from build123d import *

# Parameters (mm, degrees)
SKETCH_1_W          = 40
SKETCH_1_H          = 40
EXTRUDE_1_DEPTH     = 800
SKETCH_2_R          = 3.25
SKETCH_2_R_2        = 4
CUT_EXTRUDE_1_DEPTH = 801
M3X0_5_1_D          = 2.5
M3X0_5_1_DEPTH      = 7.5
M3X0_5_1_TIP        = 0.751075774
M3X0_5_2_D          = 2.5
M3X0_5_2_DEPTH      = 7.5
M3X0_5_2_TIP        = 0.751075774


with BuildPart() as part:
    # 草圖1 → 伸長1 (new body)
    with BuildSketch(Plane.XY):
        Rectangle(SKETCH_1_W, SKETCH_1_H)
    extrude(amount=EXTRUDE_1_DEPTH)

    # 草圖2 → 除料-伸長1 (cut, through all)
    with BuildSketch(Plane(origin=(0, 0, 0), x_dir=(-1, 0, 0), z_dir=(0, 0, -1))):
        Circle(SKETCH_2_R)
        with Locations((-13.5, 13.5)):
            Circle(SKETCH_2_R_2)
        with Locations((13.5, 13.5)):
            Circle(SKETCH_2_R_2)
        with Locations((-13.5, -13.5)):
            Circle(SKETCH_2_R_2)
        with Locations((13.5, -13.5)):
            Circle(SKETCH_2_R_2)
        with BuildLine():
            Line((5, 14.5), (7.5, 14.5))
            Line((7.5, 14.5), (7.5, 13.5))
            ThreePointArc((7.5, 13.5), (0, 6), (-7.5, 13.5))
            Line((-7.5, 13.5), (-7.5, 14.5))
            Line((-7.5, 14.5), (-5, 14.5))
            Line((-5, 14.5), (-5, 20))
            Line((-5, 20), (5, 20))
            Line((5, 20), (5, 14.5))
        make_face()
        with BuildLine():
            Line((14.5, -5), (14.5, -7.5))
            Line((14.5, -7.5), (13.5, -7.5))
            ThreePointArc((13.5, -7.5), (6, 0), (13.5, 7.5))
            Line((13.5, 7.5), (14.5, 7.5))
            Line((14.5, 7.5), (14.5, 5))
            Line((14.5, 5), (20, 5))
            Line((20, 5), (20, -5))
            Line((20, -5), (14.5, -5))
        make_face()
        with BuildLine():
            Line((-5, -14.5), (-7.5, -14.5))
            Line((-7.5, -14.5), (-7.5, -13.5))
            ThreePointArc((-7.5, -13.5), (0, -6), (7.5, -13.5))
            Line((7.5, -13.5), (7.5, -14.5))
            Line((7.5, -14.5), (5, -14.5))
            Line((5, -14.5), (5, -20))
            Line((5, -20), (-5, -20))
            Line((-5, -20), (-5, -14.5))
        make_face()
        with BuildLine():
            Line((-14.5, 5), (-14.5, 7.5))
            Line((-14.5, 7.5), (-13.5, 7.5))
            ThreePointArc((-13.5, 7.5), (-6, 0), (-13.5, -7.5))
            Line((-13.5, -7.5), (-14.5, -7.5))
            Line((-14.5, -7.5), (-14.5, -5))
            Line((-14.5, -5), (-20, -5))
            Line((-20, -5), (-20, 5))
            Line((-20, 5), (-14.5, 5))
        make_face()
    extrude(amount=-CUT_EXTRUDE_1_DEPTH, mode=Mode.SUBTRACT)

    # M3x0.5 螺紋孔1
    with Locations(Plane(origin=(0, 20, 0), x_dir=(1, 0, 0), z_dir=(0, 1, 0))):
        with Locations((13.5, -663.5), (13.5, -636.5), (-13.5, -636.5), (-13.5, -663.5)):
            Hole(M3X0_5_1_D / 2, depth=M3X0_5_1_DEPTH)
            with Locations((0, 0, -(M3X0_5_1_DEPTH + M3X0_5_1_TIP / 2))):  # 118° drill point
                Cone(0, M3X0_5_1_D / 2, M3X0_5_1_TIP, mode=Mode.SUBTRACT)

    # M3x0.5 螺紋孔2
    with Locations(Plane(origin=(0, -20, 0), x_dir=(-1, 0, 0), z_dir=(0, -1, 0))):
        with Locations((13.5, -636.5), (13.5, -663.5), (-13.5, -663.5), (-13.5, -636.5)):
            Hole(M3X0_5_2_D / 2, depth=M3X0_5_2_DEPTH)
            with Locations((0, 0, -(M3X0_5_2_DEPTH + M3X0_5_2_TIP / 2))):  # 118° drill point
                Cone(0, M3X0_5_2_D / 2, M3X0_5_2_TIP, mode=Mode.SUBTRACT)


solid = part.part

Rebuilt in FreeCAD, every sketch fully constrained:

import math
import FreeCAD as App
import Part
import Sketcher

V = App.Vector
Q = App.Units.Quantity


def add_polygon(sketch, points):
    """Adds a closed chain of lines whose ends are joined by coincident constraints."""
    first, n = sketch.GeometryCount, len(points)
    for a, b in zip(points, points[1:] + points[:1]):
        sketch.addGeometry(Part.LineSegment(App.Vector(*a, 0), App.Vector(*b, 0)), False)
    for i in range(n):
        sketch.addConstraint(Sketcher.Constraint("Coincident", first + i, 2, first + (i + 1) % n, 1))

doc = App.newDocument("Part")
body = doc.addObject("PartDesign::Body", "Body")

sketch1 = doc.addObject("Sketcher::SketchObject", "Sketch")
body.addObject(sketch1)
sketch1.AttachmentSupport = (doc.XY_Plane, [""])
sketch1.MapMode = "FlatFace"
add_polygon(sketch1, [(-20, 20), (-20, -20), (20, -20), (20, 20)])
sketch1.addConstraint(Sketcher.Constraint("Vertical", 0))
sketch1.addConstraint(Sketcher.Constraint("Horizontal", 1))
sketch1.addConstraint(Sketcher.Constraint("Vertical", 2))
sketch1.addConstraint(Sketcher.Constraint("Horizontal", 3))
sketch1.addConstraint(Sketcher.Constraint("Symmetric", 0, 2, 2, 2, -1, 1))
sketch1.addConstraint(Sketcher.Constraint("Equal", 3, 0))
sketch1.addConstraint(Sketcher.Constraint("DistanceX", 1, 1, 1, 2, Q("40 mm")))
pad1 = doc.addObject("PartDesign::Pad", "Pad")
body.addObject(pad1)
pad1.Profile = sketch1
pad1.Length = 800

sketch2 = doc.addObject("Sketcher::SketchObject", "Sketch001")
body.addObject(sketch2)
sketch2.AttachmentSupport = (doc.XY_Plane, [""])
sketch2.MapMode = "FlatFace"
sketch2.addGeometry(Part.Circle(V(0, 0, 0), V(0, 0, 1), 3.2), False)
sketch2.addGeometry(Part.Circle(V(13.5, 13.5, 0), V(0, 0, 1), 4), False)
sketch2.addGeometry(Part.Circle(V(-13.5, 13.5, 0), V(0, 0, 1), 4), False)
sketch2.addGeometry(Part.Circle(V(13.5, -13.5, 0), V(0, 0, 1), 4), False)
sketch2.addGeometry(Part.Circle(V(-13.5, -13.5, 0), V(0, 0, 1), 4), False)
sketch2.addGeometry(Part.LineSegment(V(-7.5, 14.5, 0), V(-5, 14.5, 0)), False)
sketch2.addGeometry(Part.LineSegment(V(-5, 14.5, 0), V(-5, 20, 0)), False)
sketch2.addGeometry(Part.LineSegment(V(-5, 20, 0), V(5, 20, 0)), False)
sketch2.addGeometry(Part.LineSegment(V(5, 20, 0), V(5, 14.5, 0)), False)
sketch2.addGeometry(Part.LineSegment(V(5, 14.5, 0), V(7.5, 14.5, 0)), False)
sketch2.addGeometry(Part.LineSegment(V(7.5, 14.5, 0), V(7.5, 13.5, 0)), False)
sketch2.addGeometry(Part.ArcOfCircle(Part.Circle(V(0, 13.5, 0), V(0, 0, 1), 7.5), math.radians(180), math.radians(360)), False)
sketch2.addGeometry(Part.LineSegment(V(-7.5, 13.5, 0), V(-7.5, 14.5, 0)), False)
sketch2.addGeometry(Part.LineSegment(V(-14.5, -7.5, 0), V(-14.5, -5, 0)), False)
sketch2.addGeometry(Part.LineSegment(V(-14.5, -5, 0), V(-20, -5, 0)), False)
sketch2.addGeometry(Part.LineSegment(V(-20, -5, 0), V(-20, 5, 0)), False)
sketch2.addGeometry(Part.LineSegment(V(-20, 5, 0), V(-14.5, 5, 0)), False)
sketch2.addGeometry(Part.LineSegment(V(-14.5, 5, 0), V(-14.5, 7.5, 0)), False)
sketch2.addGeometry(Part.LineSegment(V(-14.5, 7.5, 0), V(-13.5, 7.5, 0)), False)
sketch2.addGeometry(Part.ArcOfCircle(Part.Circle(V(-13.5, 0, 0), V(0, 0, 1), 7.5), math.radians(-90), math.radians(90)), False)
sketch2.addGeometry(Part.LineSegment(V(-13.5, -7.5, 0), V(-14.5, -7.5, 0)), False)
sketch2.addGeometry(Part.LineSegment(V(7.5, -14.5, 0), V(5, -14.5, 0)), False)
sketch2.addGeometry(Part.LineSegment(V(5, -14.5, 0), V(5, -20, 0)), False)
sketch2.addGeometry(Part.LineSegment(V(5, -20, 0), V(-5, -20, 0)), False)
sketch2.addGeometry(Part.LineSegment(V(-5, -20, 0), V(-5, -14.5, 0)), False)
sketch2.addGeometry(Part.LineSegment(V(-5, -14.5, 0), V(-7.5, -14.5, 0)), False)
sketch2.addGeometry(Part.LineSegment(V(-7.5, -14.5, 0), V(-7.5, -13.5, 0)), False)
sketch2.addGeometry(Part.ArcOfCircle(Part.Circle(V(0, -13.5, 0), V(0, 0, 1), 7.5), math.radians(0), math.radians(180)), False)
sketch2.addGeometry(Part.LineSegment(V(7.5, -13.5, 0), V(7.5, -14.5, 0)), False)
sketch2.addGeometry(Part.LineSegment(V(14.5, 7.5, 0), V(14.5, 5, 0)), False)
sketch2.addGeometry(Part.LineSegment(V(14.5, 5, 0), V(20, 5, 0)), False)
sketch2.addGeometry(Part.LineSegment(V(20, 5, 0), V(20, -5, 0)), False)
sketch2.addGeometry(Part.LineSegment(V(20, -5, 0), V(14.5, -5, 0)), False)
sketch2.addGeometry(Part.LineSegment(V(14.5, -5, 0), V(14.5, -7.5, 0)), False)
sketch2.addGeometry(Part.LineSegment(V(14.5, -7.5, 0), V(13.5, -7.5, 0)), False)
sketch2.addGeometry(Part.ArcOfCircle(Part.Circle(V(13.5, 0, 0), V(0, 0, 1), 7.5), math.radians(90), math.radians(270)), False)
sketch2.addGeometry(Part.LineSegment(V(13.5, 7.5, 0), V(14.5, 7.5, 0)), False)
sketch2.addConstraint(Sketcher.Constraint("Coincident", 5, 2, 6, 1))
sketch2.addConstraint(Sketcher.Constraint("Coincident", 6, 2, 7, 1))
sketch2.addConstraint(Sketcher.Constraint("Coincident", 7, 2, 8, 1))
sketch2.addConstraint(Sketcher.Constraint("Coincident", 8, 2, 9, 1))
sketch2.addConstraint(Sketcher.Constraint("Coincident", 9, 2, 10, 1))
sketch2.addConstraint(Sketcher.Constraint("Tangent", 10, 2, 11, 2))
sketch2.addConstraint(Sketcher.Constraint("Tangent", 11, 1, 12, 1))
sketch2.addConstraint(Sketcher.Constraint("Coincident", 12, 2, 5, 1))
sketch2.addConstraint(Sketcher.Constraint("Coincident", 13, 2, 14, 1))
sketch2.addConstraint(Sketcher.Constraint("Coincident", 14, 2, 15, 1))
sketch2.addConstraint(Sketcher.Constraint("Coincident", 15, 2, 16, 1))
sketch2.addConstraint(Sketcher.Constraint("Coincident", 16, 2, 17, 1))
sketch2.addConstraint(Sketcher.Constraint("Coincident", 17, 2, 18, 1))
sketch2.addConstraint(Sketcher.Constraint("Tangent", 18, 2, 19, 2))
sketch2.addConstraint(Sketcher.Constraint("Tangent", 19, 1, 20, 1))
sketch2.addConstraint(Sketcher.Constraint("Coincident", 20, 2, 13, 1))
sketch2.addConstraint(Sketcher.Constraint("Coincident", 21, 2, 22, 1))
sketch2.addConstraint(Sketcher.Constraint("Coincident", 22, 2, 23, 1))
sketch2.addConstraint(Sketcher.Constraint("Coincident", 23, 2, 24, 1))
sketch2.addConstraint(Sketcher.Constraint("Coincident", 24, 2, 25, 1))
sketch2.addConstraint(Sketcher.Constraint("Coincident", 25, 2, 26, 1))
sketch2.addConstraint(Sketcher.Constraint("Tangent", 26, 2, 27, 2))
sketch2.addConstraint(Sketcher.Constraint("Tangent", 27, 1, 28, 1))
sketch2.addConstraint(Sketcher.Constraint("Coincident", 28, 2, 21, 1))
sketch2.addConstraint(Sketcher.Constraint("Coincident", 29, 2, 30, 1))
sketch2.addConstraint(Sketcher.Constraint("Coincident", 30, 2, 31, 1))
sketch2.addConstraint(Sketcher.Constraint("Coincident", 31, 2, 32, 1))
sketch2.addConstraint(Sketcher.Constraint("Coincident", 32, 2, 33, 1))
sketch2.addConstraint(Sketcher.Constraint("Coincident", 33, 2, 34, 1))
sketch2.addConstraint(Sketcher.Constraint("Tangent", 34, 2, 35, 2))
sketch2.addConstraint(Sketcher.Constraint("Tangent", 35, 1, 36, 1))
sketch2.addConstraint(Sketcher.Constraint("Coincident", 36, 2, 29, 1))
sketch2.addConstraint(Sketcher.Constraint("Horizontal", 5))
sketch2.addConstraint(Sketcher.Constraint("Vertical", 6))
sketch2.addConstraint(Sketcher.Constraint("Horizontal", 7))
sketch2.addConstraint(Sketcher.Constraint("Vertical", 8))
sketch2.addConstraint(Sketcher.Constraint("Horizontal", 9))
sketch2.addConstraint(Sketcher.Constraint("Vertical", 10))
sketch2.addConstraint(Sketcher.Constraint("Vertical", 12))
sketch2.addConstraint(Sketcher.Constraint("Vertical", 13))
sketch2.addConstraint(Sketcher.Constraint("Horizontal", 14))
sketch2.addConstraint(Sketcher.Constraint("Vertical", 15))
sketch2.addConstraint(Sketcher.Constraint("Horizontal", 16))
sketch2.addConstraint(Sketcher.Constraint("Vertical", 17))
sketch2.addConstraint(Sketcher.Constraint("Horizontal", 18))
sketch2.addConstraint(Sketcher.Constraint("Horizontal", 20))
sketch2.addConstraint(Sketcher.Constraint("Horizontal", 21))
sketch2.addConstraint(Sketcher.Constraint("Vertical", 22))
sketch2.addConstraint(Sketcher.Constraint("Horizontal", 23))
sketch2.addConstraint(Sketcher.Constraint("Vertical", 24))
sketch2.addConstraint(Sketcher.Constraint("Horizontal", 25))
sketch2.addConstraint(Sketcher.Constraint("Vertical", 26))
sketch2.addConstraint(Sketcher.Constraint("Vertical", 28))
sketch2.addConstraint(Sketcher.Constraint("Vertical", 29))
sketch2.addConstraint(Sketcher.Constraint("Horizontal", 30))
sketch2.addConstraint(Sketcher.Constraint("Vertical", 31))
sketch2.addConstraint(Sketcher.Constraint("Horizontal", 32))
sketch2.addConstraint(Sketcher.Constraint("Vertical", 33))
sketch2.addConstraint(Sketcher.Constraint("Horizontal", 34))
sketch2.addConstraint(Sketcher.Constraint("Horizontal", 36))
sketch2.addConstraint(Sketcher.Constraint("Coincident", 0, 3, -1, 1))
sketch2.addConstraint(Sketcher.Constraint("Equal", 1, 2))
sketch2.addConstraint(Sketcher.Constraint("Equal", 2, 3))
sketch2.addConstraint(Sketcher.Constraint("Equal", 3, 4))
sketch2.addConstraint(Sketcher.Constraint("Equal", 11, 19))
sketch2.addConstraint(Sketcher.Constraint("Equal", 19, 27))
sketch2.addConstraint(Sketcher.Constraint("Equal", 27, 35))
sketch2.addConstraint(Sketcher.Constraint("Symmetric", 2, 3, 3, 3, -1, 1))
sketch2.addConstraint(Sketcher.Constraint("Symmetric", 1, 3, 4, 3, -1, 1))
sketch2.addConstraint(Sketcher.Constraint("Symmetric", 11, 3, 27, 3, -1, 1))
sketch2.addConstraint(Sketcher.Constraint("Symmetric", 19, 3, 35, 3, -1, 1))
sketch2.addConstraint(Sketcher.Constraint("Symmetric", 5, 2, 21, 2, -1, 1))
sketch2.addConstraint(Sketcher.Constraint("Symmetric", 7, 2, 23, 2, -1, 1))
sketch2.addConstraint(Sketcher.Constraint("Symmetric", 13, 2, 29, 2, -1, 1))
sketch2.addConstraint(Sketcher.Constraint("Symmetric", 15, 2, 31, 2, -1, 1))
sketch2.addConstraint(Sketcher.Constraint("Symmetric", 1, 3, 2, 3, -2))
sketch2.addConstraint(Sketcher.Constraint("Symmetric", 5, 2, 8, 2, -2))
sketch2.addConstraint(Sketcher.Constraint("Symmetric", 25, 2, 28, 2, -2))
sketch2.addConstraint(Sketcher.Constraint("Symmetric", 16, 2, 29, 2, -2))
sketch2.addConstraint(Sketcher.Constraint("Symmetric", 20, 2, 33, 2, -2))
sketch2.addConstraint(Sketcher.Constraint("Horizontal", 2, 3, 11, 3))
sketch2.addConstraint(Sketcher.Constraint("Vertical", 4, 3, 19, 3))
sketch2.addConstraint(Sketcher.Constraint("Equal", 32, 6))
sketch2.addConstraint(Sketcher.Constraint("Equal", 36, 10))
sketch2.addConstraint(Sketcher.Constraint("Equal", 25, 13))
sketch2.addConstraint(Sketcher.Constraint("Diameter", 1, Q("8 mm")))
sketch2.addConstraint(Sketcher.Constraint("Diameter", 0, Q("6.5 mm")))
sketch2.addConstraint(Sketcher.Constraint("Radius", 11, Q("7.5 mm")))
sketch2.addConstraint(Sketcher.Constraint("DistanceX", 7, 1, 7, 2, Q("10 mm")))
sketch2.addConstraint(Sketcher.Constraint("DistanceX", 18, 1, 18, 2, Q("1 mm")))
sketch2.addConstraint(Sketcher.Constraint("DistanceX", 14, 2, 14, 1, Q("5.5 mm")))
sketch2.addConstraint(Sketcher.Constraint("DistanceY", -1, 1, 6, 2, Q("20 mm")))
sketch2.addConstraint(Sketcher.Constraint("DistanceX", 14, 2, -1, 1, Q("20 mm")))
pocket1 = doc.addObject("PartDesign::Pocket", "Pocket")
body.addObject(pocket1)
pocket1.Profile = sketch2
pocket1.Type = "ThroughAll"
pocket1.Reversed = True

sketch3 = doc.addObject("Sketcher::SketchObject", "Sketch002")
body.addObject(sketch3)
sketch3.AttachmentSupport = (doc.XZ_Plane, [""])
sketch3.MapMode = "FlatFace"
sketch3.AttachmentOffset = App.Placement(V(0, 0, -20), App.Rotation())
sketch3.addGeometry(Part.Circle(V(13.5, 663.5, 0), V(0, 0, 1), 1.2), False)
sketch3.addGeometry(Part.Circle(V(13.5, 636.5, 0), V(0, 0, 1), 1.2), False)
sketch3.addGeometry(Part.Circle(V(-13.5, 636.5, 0), V(0, 0, 1), 1.2), False)
sketch3.addGeometry(Part.Circle(V(-13.5, 663.5, 0), V(0, 0, 1), 1.2), False)
sketch3.addConstraint(Sketcher.Constraint("Equal", 0, 1))
sketch3.addConstraint(Sketcher.Constraint("Equal", 1, 2))
sketch3.addConstraint(Sketcher.Constraint("Equal", 2, 3))
sketch3.addConstraint(Sketcher.Constraint("Symmetric", 1, 3, 2, 3, -2))
sketch3.addConstraint(Sketcher.Constraint("Symmetric", 0, 3, 3, 3, -2))
sketch3.addConstraint(Sketcher.Constraint("Vertical", 0, 3, 1, 3))
sketch3.addConstraint(Sketcher.Constraint("Diameter", 0, Q("2.5 mm")))
sketch3.addConstraint(Sketcher.Constraint("DistanceY", 1, 3, 0, 3, Q("27 mm")))
sketch3.addConstraint(Sketcher.Constraint("DistanceX", 2, 3, 1, 3, Q("27 mm")))
sketch3.addConstraint(Sketcher.Constraint("DistanceY", -1, 1, 0, 3, Q("663.5 mm")))
doc.recompute()
hole = doc.addObject("PartDesign::Hole", "Hole")
body.addObject(hole)
hole.Profile = sketch3
hole.ThreadType = "None"
hole.Diameter = 2.5
hole.DepthType = "Dimension"
hole.Depth = 7.5
hole.DrillPoint = "Angled"
hole.DrillPointAngle = 118
hole.Reversed = True

sketch4 = doc.addObject("Sketcher::SketchObject", "Sketch003")
body.addObject(sketch4)
sketch4.AttachmentSupport = (doc.XZ_Plane, [""])
sketch4.MapMode = "FlatFace"
sketch4.AttachmentOffset = App.Placement(V(0, 0, 20), App.Rotation())
sketch4.addGeometry(Part.Circle(V(-13.5, 636.5, 0), V(0, 0, 1), 1.2), False)
sketch4.addGeometry(Part.Circle(V(-13.5, 663.5, 0), V(0, 0, 1), 1.2), False)
sketch4.addGeometry(Part.Circle(V(13.5, 663.5, 0), V(0, 0, 1), 1.2), False)
sketch4.addGeometry(Part.Circle(V(13.5, 636.5, 0), V(0, 0, 1), 1.2), False)
sketch4.addConstraint(Sketcher.Constraint("Equal", 0, 1))
sketch4.addConstraint(Sketcher.Constraint("Equal", 1, 2))
sketch4.addConstraint(Sketcher.Constraint("Equal", 2, 3))
sketch4.addConstraint(Sketcher.Constraint("Symmetric", 1, 3, 2, 3, -2))
sketch4.addConstraint(Sketcher.Constraint("Symmetric", 0, 3, 3, 3, -2))
sketch4.addConstraint(Sketcher.Constraint("Vertical", 0, 3, 1, 3))
sketch4.addConstraint(Sketcher.Constraint("Diameter", 0, Q("2.5 mm")))
sketch4.addConstraint(Sketcher.Constraint("DistanceY", 0, 3, 1, 3, Q("27 mm")))
sketch4.addConstraint(Sketcher.Constraint("DistanceX", 1, 3, 2, 3, Q("27 mm")))
sketch4.addConstraint(Sketcher.Constraint("DistanceY", -1, 1, 0, 3, Q("636.5 mm")))
doc.recompute()
hole2 = doc.addObject("PartDesign::Hole", "Hole001")
body.addObject(hole2)
hole2.Profile = sketch4
hole2.ThreadType = "None"
hole2.Diameter = 2.5
hole2.DepthType = "Dimension"
hole2.Depth = 7.5
hole2.DrillPoint = "Angled"
hole2.DrillPointAngle = 118

doc.recompute()
